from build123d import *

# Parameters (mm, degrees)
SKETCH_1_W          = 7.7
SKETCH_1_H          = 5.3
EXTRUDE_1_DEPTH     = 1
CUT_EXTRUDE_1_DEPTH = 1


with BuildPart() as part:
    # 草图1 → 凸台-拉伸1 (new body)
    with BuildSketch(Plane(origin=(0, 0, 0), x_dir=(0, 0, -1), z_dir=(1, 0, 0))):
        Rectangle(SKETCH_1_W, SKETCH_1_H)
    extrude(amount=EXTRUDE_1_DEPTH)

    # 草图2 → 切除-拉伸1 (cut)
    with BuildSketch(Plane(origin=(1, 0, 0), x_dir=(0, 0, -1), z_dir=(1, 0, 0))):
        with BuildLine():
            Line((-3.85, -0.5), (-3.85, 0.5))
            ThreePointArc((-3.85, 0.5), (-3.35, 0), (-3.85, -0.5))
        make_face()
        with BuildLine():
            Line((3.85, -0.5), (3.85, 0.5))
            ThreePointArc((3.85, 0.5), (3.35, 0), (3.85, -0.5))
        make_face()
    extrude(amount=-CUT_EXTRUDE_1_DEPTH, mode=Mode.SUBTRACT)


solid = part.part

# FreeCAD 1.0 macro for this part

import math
import FreeCAD as App
import Part
import Sketcher
from FreeCAD import Vector

doc = App.newDocument("Part")
body = doc.addObject("PartDesign::Body", "Body")

sketch1 = doc.addObject("Sketcher::SketchObject", "Sketch")
body.addObject(sketch1)
sketch1.AttachmentSupport = (doc.YZ_Plane, [""])
sketch1.MapMode = "FlatFace"
sketch1.addGeometry([
    Part.LineSegment(Vector(3, 4, 0), Vector(-3, 4, 0)),
    Part.LineSegment(Vector(-3, 4, 0), Vector(-3, -4, 0)),
    Part.LineSegment(Vector(-3, -4, 0), Vector(3, -4, 0)),
    Part.LineSegment(Vector(3, -4, 0), Vector(3, 4, 0)),
], False)
sketch1.addConstraint([
    Sketcher.Constraint("Coincident", 0, 2, 1, 1),
    Sketcher.Constraint("Coincident", 1, 2, 2, 1),
    Sketcher.Constraint("Coincident", 2, 2, 3, 1),
    Sketcher.Constraint("Coincident", 3, 2, 0, 1),
    Sketcher.Constraint("Horizontal", 0),
    Sketcher.Constraint("Vertical", 1),
    Sketcher.Constraint("Horizontal", 2),
    Sketcher.Constraint("Vertical", 3),
    Sketcher.Constraint("Symmetric", 0, 2, 2, 2, -1, 1),
    Sketcher.Constraint("DistanceX", 0, 2, 0, 1, 5.3),
    Sketcher.Constraint("DistanceY", 1, 2, 1, 1, 7.7),
])
pad1 = doc.addObject("PartDesign::Pad", "Pad")
body.addObject(pad1)
pad1.Profile = sketch1
pad1.Length = 1

sketch2 = doc.addObject("Sketcher::SketchObject", "Sketch001")
body.addObject(sketch2)
sketch2.AttachmentSupport = (doc.YZ_Plane, [""])
sketch2.MapMode = "FlatFace"
sketch2.AttachmentOffset = App.Placement(Vector(0, 0, 1), App.Rotation())
sketch2.addGeometry([
    Part.LineSegment(Vector(0.5, 3.9, 0), Vector(-0.5, 3.9, 0)),
    Part.ArcOfCircle(Part.Circle(Vector(0, 3.9, 0), Vector(0, 0, 1), 0.5), math.radians(180), math.radians(360)),
    Part.LineSegment(Vector(-0.5, -3.9, 0), Vector(0.5, -3.9, 0)),
    Part.ArcOfCircle(Part.Circle(Vector(0, -3.9, 0), Vector(0, 0, 1), 0.5), math.radians(0), math.radians(180)),
], False)
sketch2.addConstraint([
    Sketcher.Constraint("Coincident", 0, 1, 1, 2),
    Sketcher.Constraint("Coincident", 1, 1, 0, 2),
    Sketcher.Constraint("Coincident", 2, 1, 3, 2),
    Sketcher.Constraint("Coincident", 3, 1, 2, 2),
    Sketcher.Constraint("Horizontal", 0),
    Sketcher.Constraint("Horizontal", 2),
    Sketcher.Constraint("Equal", 1, 3),
    Sketcher.Constraint("Symmetric", 1, 3, 3, 3, -1, 1),
    Sketcher.Constraint("Symmetric", 1, 1, 2, 1, -1),
    Sketcher.Constraint("Horizontal", 1, 3, 0, 1),
    Sketcher.Constraint("Radius", 1, 0.5),
    Sketcher.Constraint("DistanceY", 3, 3, 1, 3, 7.7),
])
pocket1 = doc.addObject("PartDesign::Pocket", "Pocket")
body.addObject(pocket1)
pocket1.Profile = sketch2
pocket1.Length = 1

doc.recompute()
